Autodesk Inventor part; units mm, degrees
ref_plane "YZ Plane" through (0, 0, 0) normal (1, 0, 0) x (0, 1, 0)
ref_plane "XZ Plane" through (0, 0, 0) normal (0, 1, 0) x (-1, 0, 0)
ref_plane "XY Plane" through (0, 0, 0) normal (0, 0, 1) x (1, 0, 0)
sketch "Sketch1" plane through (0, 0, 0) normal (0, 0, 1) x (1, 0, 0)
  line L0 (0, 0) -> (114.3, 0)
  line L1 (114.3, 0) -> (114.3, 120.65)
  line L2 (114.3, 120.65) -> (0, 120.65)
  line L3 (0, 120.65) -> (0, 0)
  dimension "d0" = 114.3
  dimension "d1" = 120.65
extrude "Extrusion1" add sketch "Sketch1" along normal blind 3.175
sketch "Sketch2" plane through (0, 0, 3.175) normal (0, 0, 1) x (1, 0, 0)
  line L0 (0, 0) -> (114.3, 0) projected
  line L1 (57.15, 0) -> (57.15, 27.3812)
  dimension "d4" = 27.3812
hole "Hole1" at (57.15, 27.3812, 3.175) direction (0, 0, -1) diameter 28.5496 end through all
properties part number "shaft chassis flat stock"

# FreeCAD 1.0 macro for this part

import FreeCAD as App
import Part
import Sketcher
from FreeCAD import Vector
Q = App.Units.Quantity

doc = App.newDocument("Part")
params = doc.addObject("Spreadsheet::Sheet", "Params")
for row, (alias, value) in enumerate([
    ("sketch1_width", "4.5 in"),
    ("sketch1_height", "4.75 in"),
    ("pad1_length", "0.125 in"),
    ("sketch2_diameter", "1.124 in"),
    ("hole_diameter", "1.124 in"),
], start=1):
    params.set(f"A{row}", alias)
    params.set(f"B{row}", "=" + value)
    params.setAlias(f"B{row}", alias)

body = doc.addObject("PartDesign::Body", "Body")

# Sketch on XY plane
sketch1 = body.newObject("Sketcher::SketchObject", "Sketch")
sketch1.AttachmentSupport = (doc.getObject("XY_Plane"), [""])
sketch1.MapMode = "FlatFace"
sketch1.addGeometry([
    Part.LineSegment(Vector(0, 120.65, 0), Vector(0, 0, 0)),
    Part.LineSegment(Vector(0, 0, 0), Vector(114.3, 0, 0)),
    Part.LineSegment(Vector(114.3, 0, 0), Vector(114.3, 120.65, 0)),
    Part.LineSegment(Vector(114.3, 120.65, 0), Vector(0, 120.65, 0)),
], False)
sketch1.addConstraint([
    Sketcher.Constraint("Coincident", 0, 2, 1, 1),
    Sketcher.Constraint("Coincident", 1, 2, 2, 1),
    Sketcher.Constraint("Coincident", 2, 2, 3, 1),
    Sketcher.Constraint("Coincident", 3, 2, 0, 1),
    Sketcher.Constraint("Vertical", 0),
    Sketcher.Constraint("Horizontal", 1),
    Sketcher.Constraint("Vertical", 2),
    Sketcher.Constraint("Horizontal", 3),
    Sketcher.Constraint("Coincident", 0, 2, -1, 1),
    Sketcher.Constraint("DistanceX", 1, 1, 1, 2, Q("4.5 in")),
    Sketcher.Constraint("DistanceY", 0, 2, 0, 1, Q("4.75 in")),
])
sketch1.setExpression("Constraints[9]", "Params.sketch1_width")
sketch1.setExpression("Constraints[10]", "Params.sketch1_height")
pad1 = body.newObject("PartDesign::Pad", "Pad")
pad1.Profile = sketch1
pad1.setExpression("Length", "Params.pad1_length")

# Sketch on XY plane
sketch2 = body.newObject("Sketcher::SketchObject", "Sketch001")
sketch2.AttachmentSupport = (doc.getObject("XY_Plane"), [""])
sketch2.MapMode = "FlatFace"
sketch2.AttachmentOffset = App.Placement(Vector(0, 0, 0.125 * 25.4), App.Rotation())
sketch2.addGeometry(Part.Circle(Vector(57.15, 27.3812, 0), Vector(0, 0, 1), 14.2748), False)
sketch2.addConstraint([
    Sketcher.Constraint("Diameter", 0, Q("1.124 in")),
    Sketcher.Constraint("DistanceX", -1, 1, 0, 3, Q("2.25 in")),
    Sketcher.Constraint("DistanceY", -1, 1, 0, 3, Q("1.078 in")),
])
sketch2.setExpression("Constraints[0]", "Params.sketch2_diameter")
doc.recompute()
hole = body.newObject("PartDesign::Hole", "Hole")
hole.Profile = sketch2
hole.ThreadType = "None"
hole.setExpression("Diameter", "Params.hole_diameter")
hole.DepthType = "ThroughAll"

doc.recompute()
